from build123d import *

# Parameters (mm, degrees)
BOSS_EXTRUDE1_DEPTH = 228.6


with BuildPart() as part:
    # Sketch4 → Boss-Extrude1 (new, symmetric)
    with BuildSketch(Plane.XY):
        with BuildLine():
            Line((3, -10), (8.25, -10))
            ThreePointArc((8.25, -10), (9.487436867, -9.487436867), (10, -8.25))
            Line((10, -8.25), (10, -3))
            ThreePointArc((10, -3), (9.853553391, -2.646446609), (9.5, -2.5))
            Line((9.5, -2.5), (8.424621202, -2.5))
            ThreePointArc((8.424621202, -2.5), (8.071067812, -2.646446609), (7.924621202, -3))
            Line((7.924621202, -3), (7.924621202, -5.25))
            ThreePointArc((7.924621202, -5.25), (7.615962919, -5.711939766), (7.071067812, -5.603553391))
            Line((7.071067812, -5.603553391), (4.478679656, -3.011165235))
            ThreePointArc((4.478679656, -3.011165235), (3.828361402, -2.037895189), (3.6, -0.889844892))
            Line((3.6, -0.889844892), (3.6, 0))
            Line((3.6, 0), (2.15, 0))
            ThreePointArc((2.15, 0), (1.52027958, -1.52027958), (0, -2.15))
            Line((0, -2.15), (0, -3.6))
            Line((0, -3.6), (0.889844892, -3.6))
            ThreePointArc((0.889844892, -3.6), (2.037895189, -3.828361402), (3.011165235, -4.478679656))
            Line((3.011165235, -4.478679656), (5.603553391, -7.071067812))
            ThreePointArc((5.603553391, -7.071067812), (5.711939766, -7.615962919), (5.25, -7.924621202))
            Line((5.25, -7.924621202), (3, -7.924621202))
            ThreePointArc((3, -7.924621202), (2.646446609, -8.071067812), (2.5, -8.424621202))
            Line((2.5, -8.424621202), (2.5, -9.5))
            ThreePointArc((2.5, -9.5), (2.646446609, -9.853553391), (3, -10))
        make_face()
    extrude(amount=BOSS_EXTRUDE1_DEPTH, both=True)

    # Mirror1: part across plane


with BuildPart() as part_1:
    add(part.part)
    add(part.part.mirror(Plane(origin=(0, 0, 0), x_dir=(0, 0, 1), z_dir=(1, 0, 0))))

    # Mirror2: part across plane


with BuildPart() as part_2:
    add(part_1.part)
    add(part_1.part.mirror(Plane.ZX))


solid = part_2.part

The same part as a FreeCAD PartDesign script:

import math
import FreeCAD as App
import Part
import Sketcher
from FreeCAD import Vector
Q = App.Units.Quantity

doc = App.newDocument("Part")
body = doc.addObject("PartDesign::Body", "Body")

# Sketch on XY plane
sketch1 = body.newObject("Sketcher::SketchObject", "Sketch")
sketch1.AttachmentSupport = (doc.getObject("XY_Plane"), [""])
sketch1.MapMode = "FlatFace"
sketch1.addGeometry([
    Part.LineSegment(Vector(3, -10, 0), Vector(8.25, -10, 0)),  # 0
    Part.ArcOfCircle(Part.Circle(Vector(8.25, -8.25, 0), Vector(0, 0, 1), 1.75), math.radians(-90), math.radians(0)),  # 1
    Part.LineSegment(Vector(10, -8.25, 0), Vector(10, -3, 0)),  # 2
    Part.ArcOfCircle(Part.Circle(Vector(9.5, -3, 0), Vector(0, 0, 1), 0.5), math.radians(0), math.radians(90)),  # 3
    Part.LineSegment(Vector(9.5, -2.5, 0), Vector(8.424621, -2.5, 0)),  # 4
    Part.ArcOfCircle(Part.Circle(Vector(8.424621, -3, 0), Vector(0, 0, 1), 0.5), math.radians(90), math.radians(180)),  # 5
    Part.LineSegment(Vector(7.924621, -3, 0), Vector(7.924621, -5.25, 0)),  # 6
    Part.ArcOfCircle(Part.Circle(Vector(7.424621, -5.25, 0), Vector(0, 0, 1), 0.5), math.radians(-135), math.radians(0)),  # 7
    Part.LineSegment(Vector(7.071068, -5.603553, 0), Vector(4.47868, -3.011165, 0)),  # 8
    Part.ArcOfCircle(Part.Circle(Vector(6.6, -0.889845, 0), Vector(0, 0, 1), 3), math.radians(180), math.radians(225)),  # 9
    Part.LineSegment(Vector(3.6, -0.889845, 0), Vector(3.6, 0, 0)),  # 10
    Part.LineSegment(Vector(3.6, 0, 0), Vector(2.15, 0, 0)),  # 11
    Part.ArcOfCircle(Part.Circle(Vector(0, 0, 0), Vector(0, 0, 1), 2.15), math.radians(-90), math.radians(0)),  # 12
    Part.LineSegment(Vector(0, -2.15, 0), Vector(0, -3.6, 0)),  # 13
    Part.LineSegment(Vector(0, -3.6, 0), Vector(0.889845, -3.6, 0)),  # 14
    Part.ArcOfCircle(Part.Circle(Vector(0.889845, -6.6, 0), Vector(0, 0, 1), 3), math.radians(45), math.radians(90)),  # 15
    Part.LineSegment(Vector(3.011165, -4.47868, 0), Vector(5.603553, -7.071068, 0)),  # 16
    Part.ArcOfCircle(Part.Circle(Vector(5.25, -7.424621, 0), Vector(0, 0, 1), 0.5), math.radians(-90), math.radians(45)),  # 17
    Part.LineSegment(Vector(5.25, -7.924621, 0), Vector(3, -7.924621, 0)),  # 18
    Part.ArcOfCircle(Part.Circle(Vector(3, -8.424621, 0), Vector(0, 0, 1), 0.5), math.radians(90), math.radians(180)),  # 19
    Part.LineSegment(Vector(2.5, -8.424621, 0), Vector(2.5, -9.5, 0)),  # 20
    Part.ArcOfCircle(Part.Circle(Vector(3, -9.5, 0), Vector(0, 0, 1), 0.5), math.radians(180), math.radians(270)),  # 21
], False)
sketch1.addConstraint([
    Sketcher.Constraint("Tangent", 0, 2, 1, 1),
    Sketcher.Constraint("Tangent", 1, 2, 2, 1),
    Sketcher.Constraint("Tangent", 2, 2, 3, 1),
    Sketcher.Constraint("Tangent", 3, 2, 4, 1),
    Sketcher.Constraint("Tangent", 4, 2, 5, 1),
    Sketcher.Constraint("Tangent", 5, 2, 6, 1),
    Sketcher.Constraint("Tangent", 6, 2, 7, 2),
    Sketcher.Constraint("Tangent", 7, 1, 8, 1),
    Sketcher.Constraint("Tangent", 8, 2, 9, 2),
    Sketcher.Constraint("Tangent", 9, 1, 10, 1),
    Sketcher.Constraint("Coincident", 10, 2, 11, 1),
    Sketcher.Constraint("Coincident", 11, 2, 12, 2),
    Sketcher.Constraint("Coincident", 12, 1, 13, 1),
    Sketcher.Constraint("Coincident", 13, 2, 14, 1),
    Sketcher.Constraint("Tangent", 14, 2, 15, 2),
    Sketcher.Constraint("Tangent", 15, 1, 16, 1),
    Sketcher.Constraint("Tangent", 16, 2, 17, 2),
    Sketcher.Constraint("Tangent", 17, 1, 18, 1),
    Sketcher.Constraint("Tangent", 18, 2, 19, 1),
    Sketcher.Constraint("Tangent", 19, 2, 20, 1),
    Sketcher.Constraint("Tangent", 20, 2, 21, 1),
    Sketcher.Constraint("Tangent", 21, 2, 0, 1),
    Sketcher.Constraint("Horizontal", 0),
    Sketcher.Constraint("Vertical", 2),
    Sketcher.Constraint("Horizontal", 4),
    Sketcher.Constraint("Vertical", 6),
    Sketcher.Constraint("Vertical", 10),
    Sketcher.Constraint("Horizontal", 11),
    Sketcher.Constraint("Vertical", 13),
    Sketcher.Constraint("Horizontal", 14),
    Sketcher.Constraint("Horizontal", 18),
    Sketcher.Constraint("Vertical", 20),
    Sketcher.Constraint("Coincident", 12, 3, -1, 1),
    Sketcher.Constraint("Equal", 3, 5),
    Sketcher.Constraint("Equal", 5, 7),
    Sketcher.Constraint("Equal", 9, 15),
    Sketcher.Constraint("Equal", 7, 17),
    Sketcher.Constraint("Equal", 17, 19),
    Sketcher.Constraint("Equal", 19, 21),
    Sketcher.Constraint("PointOnObject", 10, 2, -1),
    Sketcher.Constraint("PointOnObject", 12, 1, -2),
    Sketcher.Constraint("Parallel", 8, 16),
    Sketcher.Constraint("Equal", 0, 2),
    Sketcher.Constraint("Equal", 18, 6),
    Sketcher.Constraint("Equal", 14, 10),
    Sketcher.Constraint("Equal", 11, 13),
    Sketcher.Constraint("Equal", 4, 20),
    Sketcher.Constraint("Equal", 8, 16),
    Sketcher.Constraint("Radius", 9, Q("3 mm")),
    Sketcher.Constraint("Radius", 3, Q("0.5 mm")),
    Sketcher.Constraint("Radius", 1, Q("1.75 mm")),
    Sketcher.Constraint("Radius", 12, Q("2.15 mm")),
    Sketcher.Constraint("DistanceY", 3, 3, -1, 1, Q("3 mm")),
    Sketcher.Constraint("DistanceY", 0, 2, -1, 1, Q("10 mm")),
    Sketcher.Constraint("DistanceY", 1, 3, 7, 3, Q("3 mm")),
    Sketcher.Constraint("DistanceX", 11, 2, 11, 1, Q("1.45 mm")),
    Sketcher.Constraint("DistanceX", 4, 2, 4, 1, Q("1.075379 mm")),
])
pad1 = body.newObject("PartDesign::Pad", "Pad")
pad1.Profile = sketch1
pad1.Length = 457.2
pad1.Midplane = True
body2 = doc.addObject("PartDesign::Body", "Body001")
doc.recompute()

body2.BaseFeature = body
doc.recompute()

mirroring = doc.addObject("Part::Mirroring", "Mirroring")
mirroring.Source = body
mirroring.Base = Vector(0, 0, 0)
mirroring.Normal = Vector(1, 0, 0)
body3 = doc.addObject("PartDesign::Body", "Body002")
body3.BaseFeature = mirroring
boolean = body2.newObject("PartDesign::Boolean", "Boolean")
boolean.Type = "Fuse"
boolean.addObjects([body3])
doc.recompute()
body4 = doc.addObject("PartDesign::Body", "Body003")
doc.recompute()

body4.BaseFeature = body2
doc.recompute()

mirroring2 = doc.addObject("Part::Mirroring", "Mirroring001")
mirroring2.Source = body2
mirroring2.Base = Vector(0, 0, 0)
mirroring2.Normal = Vector(0, 1, 0)
body5 = doc.addObject("PartDesign::Body", "Body004")
body5.BaseFeature = mirroring2
boolean2 = body4.newObject("PartDesign::Boolean", "Boolean001")
boolean2.Type = "Fuse"
boolean2.addObjects([body5])
doc.recompute()
mirroring.Visibility = False
mirroring2.Visibility = False

doc.recompute()
